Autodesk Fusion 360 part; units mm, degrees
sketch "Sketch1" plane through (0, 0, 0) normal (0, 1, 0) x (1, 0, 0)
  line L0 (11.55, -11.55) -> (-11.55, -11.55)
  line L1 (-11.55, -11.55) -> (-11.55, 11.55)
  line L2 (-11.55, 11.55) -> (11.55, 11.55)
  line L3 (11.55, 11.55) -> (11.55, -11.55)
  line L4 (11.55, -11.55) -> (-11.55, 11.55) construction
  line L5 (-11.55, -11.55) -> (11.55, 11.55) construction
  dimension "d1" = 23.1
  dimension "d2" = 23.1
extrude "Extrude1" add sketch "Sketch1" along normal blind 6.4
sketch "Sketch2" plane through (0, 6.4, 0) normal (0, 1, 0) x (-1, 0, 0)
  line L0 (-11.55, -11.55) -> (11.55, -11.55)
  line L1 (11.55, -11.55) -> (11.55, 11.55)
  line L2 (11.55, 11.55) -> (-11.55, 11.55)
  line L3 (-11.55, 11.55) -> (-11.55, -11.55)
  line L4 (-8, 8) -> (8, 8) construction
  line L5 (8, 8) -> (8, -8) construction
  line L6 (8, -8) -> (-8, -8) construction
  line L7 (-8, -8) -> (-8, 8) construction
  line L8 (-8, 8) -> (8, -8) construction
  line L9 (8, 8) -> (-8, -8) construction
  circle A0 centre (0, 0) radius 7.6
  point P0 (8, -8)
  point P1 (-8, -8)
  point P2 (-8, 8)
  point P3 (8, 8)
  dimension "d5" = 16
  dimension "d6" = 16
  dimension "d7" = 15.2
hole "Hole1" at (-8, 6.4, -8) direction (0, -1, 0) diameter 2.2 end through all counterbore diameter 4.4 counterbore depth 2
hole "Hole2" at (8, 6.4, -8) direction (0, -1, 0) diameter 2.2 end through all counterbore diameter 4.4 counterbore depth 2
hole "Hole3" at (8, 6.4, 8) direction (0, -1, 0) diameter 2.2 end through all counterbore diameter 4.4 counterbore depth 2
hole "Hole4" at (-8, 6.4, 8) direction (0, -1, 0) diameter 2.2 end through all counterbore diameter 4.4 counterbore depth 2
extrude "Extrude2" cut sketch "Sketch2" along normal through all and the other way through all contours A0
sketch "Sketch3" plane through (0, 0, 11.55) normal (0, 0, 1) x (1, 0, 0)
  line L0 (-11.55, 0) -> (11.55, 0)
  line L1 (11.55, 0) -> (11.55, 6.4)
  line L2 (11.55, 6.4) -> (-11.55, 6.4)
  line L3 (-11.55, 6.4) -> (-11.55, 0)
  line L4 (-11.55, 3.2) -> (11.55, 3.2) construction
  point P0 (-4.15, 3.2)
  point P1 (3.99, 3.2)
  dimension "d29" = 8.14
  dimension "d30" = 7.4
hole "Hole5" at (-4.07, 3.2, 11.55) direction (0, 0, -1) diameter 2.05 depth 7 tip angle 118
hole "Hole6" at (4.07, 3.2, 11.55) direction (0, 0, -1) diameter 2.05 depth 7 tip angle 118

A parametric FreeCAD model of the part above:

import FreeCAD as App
import Part
import Sketcher

doc = App.newDocument("Part")
body = doc.addObject("PartDesign::Body", "Body")

# Sketch on XZ plane
sketch1 = body.newObject("Sketcher::SketchObject", "Sketch")
sketch1.AttachmentSupport = (doc.getObject("XZ_Plane"), [""])
sketch1.MapMode = "FlatFace"
sketch1.addGeometry(Part.LineSegment(App.Vector(-12, 12, 0), App.Vector(12, 12, 0)), False)
sketch1.addGeometry(Part.LineSegment(App.Vector(12, 12, 0), App.Vector(12, -12, 0)), False)
sketch1.addGeometry(Part.LineSegment(App.Vector(12, -12, 0), App.Vector(-12, -12, 0)), False)
sketch1.addGeometry(Part.LineSegment(App.Vector(-12, -12, 0), App.Vector(-12, 12, 0)), False)
sketch1.addConstraint(Sketcher.Constraint("Coincident", 0, 2, 1, 1))
sketch1.addConstraint(Sketcher.Constraint("Coincident", 1, 2, 2, 1))
sketch1.addConstraint(Sketcher.Constraint("Coincident", 2, 2, 3, 1))
sketch1.addConstraint(Sketcher.Constraint("Coincident", 3, 2, 0, 1))
sketch1.addConstraint(Sketcher.Constraint("Horizontal", 0))
sketch1.addConstraint(Sketcher.Constraint("Vertical", 1))
sketch1.addConstraint(Sketcher.Constraint("Horizontal", 2))
sketch1.addConstraint(Sketcher.Constraint("Vertical", 3))
sketch1.addConstraint(Sketcher.Constraint("Symmetric", 0, 2, 2, 2, -1, 1))
sketch1.addConstraint(Sketcher.Constraint("Equal", 2, 1))
sketch1.addConstraint(Sketcher.Constraint("DistanceX", 0, 1, 0, 2, 23.1))
pad1 = body.newObject("PartDesign::Pad", "Pad")
pad1.Profile = sketch1
pad1.Length = 6.4
pad1.Reversed = True

# Sketch on XZ plane
sketch2 = body.newObject("Sketcher::SketchObject", "Sketch001")
sketch2.AttachmentSupport = (doc.getObject("XZ_Plane"), [""])
sketch2.MapMode = "FlatFace"
sketch2.AttachmentOffset = App.Placement(App.Vector(0, 0, -6.4), App.Rotation())
sketch2.addGeometry(Part.Circle(App.Vector(-8, -8, 0), App.Vector(0, 0, 1), 1.1), False)
sketch2.addConstraint(Sketcher.Constraint("Diameter", 0, 2.2))
sketch2.addConstraint(Sketcher.Constraint("DistanceX", 0, 3, -1, 1, 8.0))
sketch2.addConstraint(Sketcher.Constraint("DistanceY", 0, 3, -1, 1, 8.0))
doc.recompute()
hole = body.newObject("PartDesign::Hole", "Hole")
hole.Profile = sketch2
hole.ThreadType = "None"
hole.Diameter = 2.2
hole.DepthType = "ThroughAll"
hole.HoleCutType = "Counterbore"
hole.HoleCutDiameter = 4.4
hole.HoleCutDepth = 2
hole.Reversed = True

# Sketch on XZ plane
sketch3 = body.newObject("Sketcher::SketchObject", "Sketch002")
sketch3.AttachmentSupport = (doc.getObject("XZ_Plane"), [""])
sketch3.MapMode = "FlatFace"
sketch3.AttachmentOffset = App.Placement(App.Vector(0, 0, -6.4), App.Rotation())
sketch3.addGeometry(Part.Circle(App.Vector(8, -8, 0), App.Vector(0, 0, 1), 1.1), False)
sketch3.addConstraint(Sketcher.Constraint("Diameter", 0, 2.2))
sketch3.addConstraint(Sketcher.Constraint("DistanceX", -1, 1, 0, 3, 8.0))
sketch3.addConstraint(Sketcher.Constraint("DistanceY", 0, 3, -1, 1, 8.0))
doc.recompute()
hole2 = body.newObject("PartDesign::Hole", "Hole001")
hole2.Profile = sketch3
hole2.ThreadType = "None"
hole2.Diameter = 2.2
hole2.DepthType = "ThroughAll"
hole2.HoleCutType = "Counterbore"
hole2.HoleCutDiameter = 4.4
hole2.HoleCutDepth = 2
hole2.Reversed = True

# Sketch on XZ plane
sketch4 = body.newObject("Sketcher::SketchObject", "Sketch003")
sketch4.AttachmentSupport = (doc.getObject("XZ_Plane"), [""])
sketch4.MapMode = "FlatFace"
sketch4.AttachmentOffset = App.Placement(App.Vector(0, 0, -6.4), App.Rotation())
sketch4.addGeometry(Part.Circle(App.Vector(8, 8, 0), App.Vector(0, 0, 1), 1.1), False)
sketch4.addConstraint(Sketcher.Constraint("Diameter", 0, 2.2))
sketch4.addConstraint(Sketcher.Constraint("DistanceX", -1, 1, 0, 3, 8.0))
sketch4.addConstraint(Sketcher.Constraint("DistanceY", -1, 1, 0, 3, 8.0))
doc.recompute()
hole3 = body.newObject("PartDesign::Hole", "Hole002")
hole3.Profile = sketch4
hole3.ThreadType = "None"
hole3.Diameter = 2.2
hole3.DepthType = "ThroughAll"
hole3.HoleCutType = "Counterbore"
hole3.HoleCutDiameter = 4.4
hole3.HoleCutDepth = 2
hole3.Reversed = True

# Sketch on XZ plane
sketch5 = body.newObject("Sketcher::SketchObject", "Sketch004")
sketch5.AttachmentSupport = (doc.getObject("XZ_Plane"), [""])
sketch5.MapMode = "FlatFace"
sketch5.AttachmentOffset = App.Placement(App.Vector(0, 0, -6.4), App.Rotation())
sketch5.addGeometry(Part.Circle(App.Vector(-8, 8, 0), App.Vector(0, 0, 1), 1.1), False)
sketch5.addConstraint(Sketcher.Constraint("Diameter", 0, 2.2))
sketch5.addConstraint(Sketcher.Constraint("DistanceX", 0, 3, -1, 1, 8.0))
sketch5.addConstraint(Sketcher.Constraint("DistanceY", -1, 1, 0, 3, 8.0))
doc.recompute()
hole4 = body.newObject("PartDesign::Hole", "Hole003")
hole4.Profile = sketch5
hole4.ThreadType = "None"
hole4.Diameter = 2.2
hole4.DepthType = "ThroughAll"
hole4.HoleCutType = "Counterbore"
hole4.HoleCutDiameter = 4.4
hole4.HoleCutDepth = 2
hole4.Reversed = True

# Sketch on XZ plane
sketch6 = body.newObject("Sketcher::SketchObject", "Sketch005")
sketch6.AttachmentSupport = (doc.getObject("XZ_Plane"), [""])
sketch6.MapMode = "FlatFace"
sketch6.AttachmentOffset = App.Placement(App.Vector(0, 0, -6.4), App.Rotation())
sketch6.addGeometry(Part.Circle(App.Vector(0, 0, 0), App.Vector(0, 0, 1), 8), False)
sketch6.addConstraint(Sketcher.Constraint("Coincident", 0, 3, -1, 1))
sketch6.addConstraint(Sketcher.Constraint("Diameter", 0, 15.2))
pocket1 = body.newObject("PartDesign::Pocket", "Pocket")
pocket1.Profile = sketch6
pocket1.Type = "ThroughAll"
pocket1.Midplane = True

# Sketch on XY plane
sketch7 = body.newObject("Sketcher::SketchObject", "Sketch006")
sketch7.AttachmentSupport = (doc.getObject("XY_Plane"), [""])
sketch7.MapMode = "FlatFace"
sketch7.AttachmentOffset = App.Placement(App.Vector(0, 0, 11.55), App.Rotation())
sketch7.addGeometry(Part.Circle(App.Vector(-4.1, 3.2, 0), App.Vector(0, 0, 1), 1), False)
sketch7.addConstraint(Sketcher.Constraint("Diameter", 0, 2.05))
sketch7.addConstraint(Sketcher.Constraint("DistanceY", -1, 1, 0, 3, 3.2))
sketch7.addConstraint(Sketcher.Constraint("DistanceX", 0, 3, -1, 1, 4.07))
doc.recompute()
hole5 = body.newObject("PartDesign::Hole", "Hole004")
hole5.Profile = sketch7
hole5.ThreadType = "None"
hole5.Diameter = 2.05
hole5.DepthType = "Dimension"
hole5.Depth = 7
hole5.DrillPoint = "Angled"
hole5.DrillPointAngle = 118

# Sketch on XY plane
sketch8 = body.newObject("Sketcher::SketchObject", "Sketch007")
sketch8.AttachmentSupport = (doc.getObject("XY_Plane"), [""])
sketch8.MapMode = "FlatFace"
sketch8.AttachmentOffset = App.Placement(App.Vector(0, 0, 11.55), App.Rotation())
sketch8.addGeometry(Part.Circle(App.Vector(4.1, 3.2, 0), App.Vector(0, 0, 1), 1), False)
sketch8.addConstraint(Sketcher.Constraint("Diameter", 0, 2.05))
sketch8.addConstraint(Sketcher.Constraint("DistanceY", -1, 1, 0, 3, 3.2))
sketch8.addConstraint(Sketcher.Constraint("DistanceX", -1, 1, 0, 3, 4.07))
doc.recompute()
hole6 = body.newObject("PartDesign::Hole", "Hole005")
hole6.Profile = sketch8
hole6.ThreadType = "None"
hole6.Diameter = 2.05
hole6.DepthType = "Dimension"
hole6.Depth = 7
hole6.DrillPoint = "Angled"
hole6.DrillPointAngle = 118

doc.recompute()
